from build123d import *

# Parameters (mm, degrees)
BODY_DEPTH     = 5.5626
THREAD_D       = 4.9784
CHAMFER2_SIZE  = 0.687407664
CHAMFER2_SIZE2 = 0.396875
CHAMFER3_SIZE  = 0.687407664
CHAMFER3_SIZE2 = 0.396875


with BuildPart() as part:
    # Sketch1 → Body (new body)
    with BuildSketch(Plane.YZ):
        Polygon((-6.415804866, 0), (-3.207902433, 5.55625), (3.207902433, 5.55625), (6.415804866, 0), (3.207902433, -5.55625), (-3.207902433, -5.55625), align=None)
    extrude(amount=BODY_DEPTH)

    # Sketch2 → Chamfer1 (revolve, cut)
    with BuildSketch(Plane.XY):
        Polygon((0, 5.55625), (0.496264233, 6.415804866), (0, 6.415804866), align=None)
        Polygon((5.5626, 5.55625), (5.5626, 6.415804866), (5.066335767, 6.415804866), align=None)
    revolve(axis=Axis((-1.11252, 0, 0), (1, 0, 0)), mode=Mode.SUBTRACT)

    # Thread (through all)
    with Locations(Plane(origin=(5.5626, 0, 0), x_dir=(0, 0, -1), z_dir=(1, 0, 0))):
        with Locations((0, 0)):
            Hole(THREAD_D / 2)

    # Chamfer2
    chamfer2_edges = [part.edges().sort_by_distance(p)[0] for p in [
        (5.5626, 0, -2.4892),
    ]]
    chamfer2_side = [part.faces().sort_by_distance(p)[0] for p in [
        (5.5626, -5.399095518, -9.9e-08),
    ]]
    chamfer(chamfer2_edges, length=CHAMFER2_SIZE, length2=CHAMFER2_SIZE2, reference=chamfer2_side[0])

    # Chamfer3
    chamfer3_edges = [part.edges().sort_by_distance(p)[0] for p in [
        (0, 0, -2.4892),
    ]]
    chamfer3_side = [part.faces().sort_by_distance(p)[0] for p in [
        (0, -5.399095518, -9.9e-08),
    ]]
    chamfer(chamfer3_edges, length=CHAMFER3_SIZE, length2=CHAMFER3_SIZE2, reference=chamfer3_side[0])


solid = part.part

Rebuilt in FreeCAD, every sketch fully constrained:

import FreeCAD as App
import Part
import Sketcher
from FreeCAD import Vector
Q = App.Units.Quantity


def edges_at(feature, points):
    """Names of the edges that pass closest to the given points."""
    edges = feature.Shape.Edges
    near = lambda p: min(range(len(edges)), key=lambda i: edges[i].distToShape(Part.Vertex(*p))[0])
    return sorted({f"Edge{near(p) + 1}" for p in points})

doc = App.newDocument("Part")
body = doc.addObject("PartDesign::Body", "Body")

sketch1 = body.newObject("Sketcher::SketchObject", "Sketch")
sketch1.AttachmentSupport = (doc.getObject("YZ_Plane"), [""])
sketch1.MapMode = "FlatFace"
sketch1.addGeometry([
    Part.LineSegment(Vector(-3.207902, 5.55625, 0), Vector(-6.415805, 0, 0)),
    Part.LineSegment(Vector(-6.415805, 0, 0), Vector(-3.207902, -5.55625, 0)),
    Part.LineSegment(Vector(-3.207902, -5.55625, 0), Vector(3.207902, -5.55625, 0)),
    Part.LineSegment(Vector(3.207902, -5.55625, 0), Vector(6.415805, 0, 0)),
    Part.LineSegment(Vector(6.415805, 0, 0), Vector(3.207902, 5.55625, 0)),
    Part.LineSegment(Vector(3.207902, 5.55625, 0), Vector(-3.207902, 5.55625, 0)),
], False)
sketch1.addConstraint([
    Sketcher.Constraint("Coincident", 0, 2, 1, 1),
    Sketcher.Constraint("Coincident", 1, 2, 2, 1),
    Sketcher.Constraint("Coincident", 2, 2, 3, 1),
    Sketcher.Constraint("Coincident", 3, 2, 4, 1),
    Sketcher.Constraint("Coincident", 4, 2, 5, 1),
    Sketcher.Constraint("Coincident", 5, 2, 0, 1),
    Sketcher.Constraint("Horizontal", 2),
    Sketcher.Constraint("Horizontal", 5),
    Sketcher.Constraint("Symmetric", 0, 2, 3, 2, -1, 1),
    Sketcher.Constraint("Symmetric", 1, 2, 4, 2, -1, 1),
    Sketcher.Constraint("PointOnObject", 0, 2, -1),
    Sketcher.Constraint("Parallel", 0, 3),
    Sketcher.Constraint("Vertical", 2, 2, 4, 2),
    Sketcher.Constraint("Angle", 0, Q("-120 deg")),
    Sketcher.Constraint("DistanceY", 1, 2, -1, 1, Q("0.21875 in")),
    Sketcher.Constraint("DistanceX", 2, 1, 2, 2, 6.415805),
])
pad1 = body.newObject("PartDesign::Pad", "Pad")
pad1.Profile = sketch1
pad1.Length = Q("0.219 in")

sketch2 = body.newObject("Sketcher::SketchObject", "Sketch001")
sketch2.AttachmentSupport = (doc.getObject("XY_Plane"), [""])
sketch2.MapMode = "FlatFace"
sketch2.addGeometry([
    Part.LineSegment(Vector(0, 5.55625, 0), Vector(0.496264, 6.415805, 0)),
    Part.LineSegment(Vector(0.496264, 6.415805, 0), Vector(0, 6.415805, 0)),
    Part.LineSegment(Vector(0, 6.415805, 0), Vector(0, 5.55625, 0)),
    Part.LineSegment(Vector(5.5626, 5.55625, 0), Vector(5.5626, 6.415805, 0)),
    Part.LineSegment(Vector(5.5626, 6.415805, 0), Vector(5.066336, 6.415805, 0)),
    Part.LineSegment(Vector(5.066336, 6.415805, 0), Vector(5.5626, 5.55625, 0)),
], False)
sketch2.addConstraint([
    Sketcher.Constraint("Coincident", 0, 2, 1, 1),
    Sketcher.Constraint("Coincident", 1, 2, 2, 1),
    Sketcher.Constraint("Coincident", 2, 2, 0, 1),
    Sketcher.Constraint("Coincident", 3, 2, 4, 1),
    Sketcher.Constraint("Coincident", 4, 2, 5, 1),
    Sketcher.Constraint("Coincident", 5, 2, 3, 1),
    Sketcher.Constraint("Horizontal", 1),
    Sketcher.Constraint("Vertical", 2),
    Sketcher.Constraint("Vertical", 3),
    Sketcher.Constraint("Horizontal", 4),
    Sketcher.Constraint("PointOnObject", 1, 2, -2),
    Sketcher.Constraint("Horizontal", 1, 2, 3, 2),
    Sketcher.Constraint("Horizontal", 2, 2, 5, 2),
    Sketcher.Constraint("Equal", 1, 4),
    Sketcher.Constraint("Angle", 0, Q("60 deg")),
    Sketcher.Constraint("DistanceY", -1, 1, 2, 2, Q("0.21875 in")),
    Sketcher.Constraint("DistanceX", -1, 1, 3, 2, Q("0.219 in")),
    Sketcher.Constraint("Distance", 0, 0.992528),
])
groove = body.newObject("PartDesign::Groove", "Groove")
groove.Profile = sketch2
groove.ReferenceAxis = (sketch2, ["H_Axis"])
groove.Angle = 360

sketch3 = body.newObject("Sketcher::SketchObject", "Sketch002")
sketch3.AttachmentSupport = (doc.getObject("YZ_Plane"), [""])
sketch3.MapMode = "FlatFace"
sketch3.AttachmentOffset = App.Placement(Vector(0, 0, 0.219 * 25.4), App.Rotation())
sketch3.addGeometry(Part.Circle(Vector(0, 0, 0), Vector(0, 0, 1), 2.4892), False)
sketch3.addConstraint([
    Sketcher.Constraint("Coincident", 0, 3, -1, 1),
    Sketcher.Constraint("Diameter", 0, Q("0.196 in")),
])
doc.recompute()
hole = body.newObject("PartDesign::Hole", "Hole")
hole.Profile = sketch3
hole.ThreadType = "None"
hole.Diameter = Q("0.196 in")
hole.DepthType = "ThroughAll"
doc.recompute()

chamfer = body.newObject("PartDesign::Chamfer", "Chamfer")
chamfer.Base = (hole, edges_at(hole, [(5.563, 0, -2.489)]))
chamfer.ChamferType = "Two distances"
chamfer.Size = 0.687408
chamfer.Size2 = Q("0.015625 in")
doc.recompute()

chamfer2 = body.newObject("PartDesign::Chamfer", "Chamfer001")
chamfer2.Base = (chamfer, edges_at(chamfer, [(0, 0, -2.489)]))
chamfer2.ChamferType = "Two distances"
chamfer2.Size = 0.687408
chamfer2.Size2 = Q("0.015625 in")
chamfer2.FlipDirection = True

doc.recompute()
